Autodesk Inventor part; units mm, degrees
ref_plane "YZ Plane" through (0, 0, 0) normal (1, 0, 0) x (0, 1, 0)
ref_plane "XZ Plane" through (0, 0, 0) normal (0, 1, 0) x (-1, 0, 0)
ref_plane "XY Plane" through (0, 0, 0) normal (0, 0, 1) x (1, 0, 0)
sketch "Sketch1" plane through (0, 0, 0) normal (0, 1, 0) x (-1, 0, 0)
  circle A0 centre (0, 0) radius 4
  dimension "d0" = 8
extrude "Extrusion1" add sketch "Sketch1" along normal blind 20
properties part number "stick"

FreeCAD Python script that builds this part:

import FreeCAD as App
import Part
import Sketcher

doc = App.newDocument("Part")
body = doc.addObject("PartDesign::Body", "Body")

# Sketch on XZ plane
sketch1 = body.newObject("Sketcher::SketchObject", "Sketch")
sketch1.AttachmentSupport = (doc.getObject("XZ_Plane"), [""])
sketch1.MapMode = "FlatFace"
sketch1.addGeometry(Part.Circle(App.Vector(0, 0, 0), App.Vector(0, 0, 1), 4), False)
sketch1.addConstraint([
    Sketcher.Constraint("Coincident", 0, 3, -1, 1),
    Sketcher.Constraint("Diameter", 0, 8.0),
])
pad1 = body.newObject("PartDesign::Pad", "Pad")
pad1.Profile = sketch1
pad1.Length = 20
pad1.Reversed = True

doc.recompute()
